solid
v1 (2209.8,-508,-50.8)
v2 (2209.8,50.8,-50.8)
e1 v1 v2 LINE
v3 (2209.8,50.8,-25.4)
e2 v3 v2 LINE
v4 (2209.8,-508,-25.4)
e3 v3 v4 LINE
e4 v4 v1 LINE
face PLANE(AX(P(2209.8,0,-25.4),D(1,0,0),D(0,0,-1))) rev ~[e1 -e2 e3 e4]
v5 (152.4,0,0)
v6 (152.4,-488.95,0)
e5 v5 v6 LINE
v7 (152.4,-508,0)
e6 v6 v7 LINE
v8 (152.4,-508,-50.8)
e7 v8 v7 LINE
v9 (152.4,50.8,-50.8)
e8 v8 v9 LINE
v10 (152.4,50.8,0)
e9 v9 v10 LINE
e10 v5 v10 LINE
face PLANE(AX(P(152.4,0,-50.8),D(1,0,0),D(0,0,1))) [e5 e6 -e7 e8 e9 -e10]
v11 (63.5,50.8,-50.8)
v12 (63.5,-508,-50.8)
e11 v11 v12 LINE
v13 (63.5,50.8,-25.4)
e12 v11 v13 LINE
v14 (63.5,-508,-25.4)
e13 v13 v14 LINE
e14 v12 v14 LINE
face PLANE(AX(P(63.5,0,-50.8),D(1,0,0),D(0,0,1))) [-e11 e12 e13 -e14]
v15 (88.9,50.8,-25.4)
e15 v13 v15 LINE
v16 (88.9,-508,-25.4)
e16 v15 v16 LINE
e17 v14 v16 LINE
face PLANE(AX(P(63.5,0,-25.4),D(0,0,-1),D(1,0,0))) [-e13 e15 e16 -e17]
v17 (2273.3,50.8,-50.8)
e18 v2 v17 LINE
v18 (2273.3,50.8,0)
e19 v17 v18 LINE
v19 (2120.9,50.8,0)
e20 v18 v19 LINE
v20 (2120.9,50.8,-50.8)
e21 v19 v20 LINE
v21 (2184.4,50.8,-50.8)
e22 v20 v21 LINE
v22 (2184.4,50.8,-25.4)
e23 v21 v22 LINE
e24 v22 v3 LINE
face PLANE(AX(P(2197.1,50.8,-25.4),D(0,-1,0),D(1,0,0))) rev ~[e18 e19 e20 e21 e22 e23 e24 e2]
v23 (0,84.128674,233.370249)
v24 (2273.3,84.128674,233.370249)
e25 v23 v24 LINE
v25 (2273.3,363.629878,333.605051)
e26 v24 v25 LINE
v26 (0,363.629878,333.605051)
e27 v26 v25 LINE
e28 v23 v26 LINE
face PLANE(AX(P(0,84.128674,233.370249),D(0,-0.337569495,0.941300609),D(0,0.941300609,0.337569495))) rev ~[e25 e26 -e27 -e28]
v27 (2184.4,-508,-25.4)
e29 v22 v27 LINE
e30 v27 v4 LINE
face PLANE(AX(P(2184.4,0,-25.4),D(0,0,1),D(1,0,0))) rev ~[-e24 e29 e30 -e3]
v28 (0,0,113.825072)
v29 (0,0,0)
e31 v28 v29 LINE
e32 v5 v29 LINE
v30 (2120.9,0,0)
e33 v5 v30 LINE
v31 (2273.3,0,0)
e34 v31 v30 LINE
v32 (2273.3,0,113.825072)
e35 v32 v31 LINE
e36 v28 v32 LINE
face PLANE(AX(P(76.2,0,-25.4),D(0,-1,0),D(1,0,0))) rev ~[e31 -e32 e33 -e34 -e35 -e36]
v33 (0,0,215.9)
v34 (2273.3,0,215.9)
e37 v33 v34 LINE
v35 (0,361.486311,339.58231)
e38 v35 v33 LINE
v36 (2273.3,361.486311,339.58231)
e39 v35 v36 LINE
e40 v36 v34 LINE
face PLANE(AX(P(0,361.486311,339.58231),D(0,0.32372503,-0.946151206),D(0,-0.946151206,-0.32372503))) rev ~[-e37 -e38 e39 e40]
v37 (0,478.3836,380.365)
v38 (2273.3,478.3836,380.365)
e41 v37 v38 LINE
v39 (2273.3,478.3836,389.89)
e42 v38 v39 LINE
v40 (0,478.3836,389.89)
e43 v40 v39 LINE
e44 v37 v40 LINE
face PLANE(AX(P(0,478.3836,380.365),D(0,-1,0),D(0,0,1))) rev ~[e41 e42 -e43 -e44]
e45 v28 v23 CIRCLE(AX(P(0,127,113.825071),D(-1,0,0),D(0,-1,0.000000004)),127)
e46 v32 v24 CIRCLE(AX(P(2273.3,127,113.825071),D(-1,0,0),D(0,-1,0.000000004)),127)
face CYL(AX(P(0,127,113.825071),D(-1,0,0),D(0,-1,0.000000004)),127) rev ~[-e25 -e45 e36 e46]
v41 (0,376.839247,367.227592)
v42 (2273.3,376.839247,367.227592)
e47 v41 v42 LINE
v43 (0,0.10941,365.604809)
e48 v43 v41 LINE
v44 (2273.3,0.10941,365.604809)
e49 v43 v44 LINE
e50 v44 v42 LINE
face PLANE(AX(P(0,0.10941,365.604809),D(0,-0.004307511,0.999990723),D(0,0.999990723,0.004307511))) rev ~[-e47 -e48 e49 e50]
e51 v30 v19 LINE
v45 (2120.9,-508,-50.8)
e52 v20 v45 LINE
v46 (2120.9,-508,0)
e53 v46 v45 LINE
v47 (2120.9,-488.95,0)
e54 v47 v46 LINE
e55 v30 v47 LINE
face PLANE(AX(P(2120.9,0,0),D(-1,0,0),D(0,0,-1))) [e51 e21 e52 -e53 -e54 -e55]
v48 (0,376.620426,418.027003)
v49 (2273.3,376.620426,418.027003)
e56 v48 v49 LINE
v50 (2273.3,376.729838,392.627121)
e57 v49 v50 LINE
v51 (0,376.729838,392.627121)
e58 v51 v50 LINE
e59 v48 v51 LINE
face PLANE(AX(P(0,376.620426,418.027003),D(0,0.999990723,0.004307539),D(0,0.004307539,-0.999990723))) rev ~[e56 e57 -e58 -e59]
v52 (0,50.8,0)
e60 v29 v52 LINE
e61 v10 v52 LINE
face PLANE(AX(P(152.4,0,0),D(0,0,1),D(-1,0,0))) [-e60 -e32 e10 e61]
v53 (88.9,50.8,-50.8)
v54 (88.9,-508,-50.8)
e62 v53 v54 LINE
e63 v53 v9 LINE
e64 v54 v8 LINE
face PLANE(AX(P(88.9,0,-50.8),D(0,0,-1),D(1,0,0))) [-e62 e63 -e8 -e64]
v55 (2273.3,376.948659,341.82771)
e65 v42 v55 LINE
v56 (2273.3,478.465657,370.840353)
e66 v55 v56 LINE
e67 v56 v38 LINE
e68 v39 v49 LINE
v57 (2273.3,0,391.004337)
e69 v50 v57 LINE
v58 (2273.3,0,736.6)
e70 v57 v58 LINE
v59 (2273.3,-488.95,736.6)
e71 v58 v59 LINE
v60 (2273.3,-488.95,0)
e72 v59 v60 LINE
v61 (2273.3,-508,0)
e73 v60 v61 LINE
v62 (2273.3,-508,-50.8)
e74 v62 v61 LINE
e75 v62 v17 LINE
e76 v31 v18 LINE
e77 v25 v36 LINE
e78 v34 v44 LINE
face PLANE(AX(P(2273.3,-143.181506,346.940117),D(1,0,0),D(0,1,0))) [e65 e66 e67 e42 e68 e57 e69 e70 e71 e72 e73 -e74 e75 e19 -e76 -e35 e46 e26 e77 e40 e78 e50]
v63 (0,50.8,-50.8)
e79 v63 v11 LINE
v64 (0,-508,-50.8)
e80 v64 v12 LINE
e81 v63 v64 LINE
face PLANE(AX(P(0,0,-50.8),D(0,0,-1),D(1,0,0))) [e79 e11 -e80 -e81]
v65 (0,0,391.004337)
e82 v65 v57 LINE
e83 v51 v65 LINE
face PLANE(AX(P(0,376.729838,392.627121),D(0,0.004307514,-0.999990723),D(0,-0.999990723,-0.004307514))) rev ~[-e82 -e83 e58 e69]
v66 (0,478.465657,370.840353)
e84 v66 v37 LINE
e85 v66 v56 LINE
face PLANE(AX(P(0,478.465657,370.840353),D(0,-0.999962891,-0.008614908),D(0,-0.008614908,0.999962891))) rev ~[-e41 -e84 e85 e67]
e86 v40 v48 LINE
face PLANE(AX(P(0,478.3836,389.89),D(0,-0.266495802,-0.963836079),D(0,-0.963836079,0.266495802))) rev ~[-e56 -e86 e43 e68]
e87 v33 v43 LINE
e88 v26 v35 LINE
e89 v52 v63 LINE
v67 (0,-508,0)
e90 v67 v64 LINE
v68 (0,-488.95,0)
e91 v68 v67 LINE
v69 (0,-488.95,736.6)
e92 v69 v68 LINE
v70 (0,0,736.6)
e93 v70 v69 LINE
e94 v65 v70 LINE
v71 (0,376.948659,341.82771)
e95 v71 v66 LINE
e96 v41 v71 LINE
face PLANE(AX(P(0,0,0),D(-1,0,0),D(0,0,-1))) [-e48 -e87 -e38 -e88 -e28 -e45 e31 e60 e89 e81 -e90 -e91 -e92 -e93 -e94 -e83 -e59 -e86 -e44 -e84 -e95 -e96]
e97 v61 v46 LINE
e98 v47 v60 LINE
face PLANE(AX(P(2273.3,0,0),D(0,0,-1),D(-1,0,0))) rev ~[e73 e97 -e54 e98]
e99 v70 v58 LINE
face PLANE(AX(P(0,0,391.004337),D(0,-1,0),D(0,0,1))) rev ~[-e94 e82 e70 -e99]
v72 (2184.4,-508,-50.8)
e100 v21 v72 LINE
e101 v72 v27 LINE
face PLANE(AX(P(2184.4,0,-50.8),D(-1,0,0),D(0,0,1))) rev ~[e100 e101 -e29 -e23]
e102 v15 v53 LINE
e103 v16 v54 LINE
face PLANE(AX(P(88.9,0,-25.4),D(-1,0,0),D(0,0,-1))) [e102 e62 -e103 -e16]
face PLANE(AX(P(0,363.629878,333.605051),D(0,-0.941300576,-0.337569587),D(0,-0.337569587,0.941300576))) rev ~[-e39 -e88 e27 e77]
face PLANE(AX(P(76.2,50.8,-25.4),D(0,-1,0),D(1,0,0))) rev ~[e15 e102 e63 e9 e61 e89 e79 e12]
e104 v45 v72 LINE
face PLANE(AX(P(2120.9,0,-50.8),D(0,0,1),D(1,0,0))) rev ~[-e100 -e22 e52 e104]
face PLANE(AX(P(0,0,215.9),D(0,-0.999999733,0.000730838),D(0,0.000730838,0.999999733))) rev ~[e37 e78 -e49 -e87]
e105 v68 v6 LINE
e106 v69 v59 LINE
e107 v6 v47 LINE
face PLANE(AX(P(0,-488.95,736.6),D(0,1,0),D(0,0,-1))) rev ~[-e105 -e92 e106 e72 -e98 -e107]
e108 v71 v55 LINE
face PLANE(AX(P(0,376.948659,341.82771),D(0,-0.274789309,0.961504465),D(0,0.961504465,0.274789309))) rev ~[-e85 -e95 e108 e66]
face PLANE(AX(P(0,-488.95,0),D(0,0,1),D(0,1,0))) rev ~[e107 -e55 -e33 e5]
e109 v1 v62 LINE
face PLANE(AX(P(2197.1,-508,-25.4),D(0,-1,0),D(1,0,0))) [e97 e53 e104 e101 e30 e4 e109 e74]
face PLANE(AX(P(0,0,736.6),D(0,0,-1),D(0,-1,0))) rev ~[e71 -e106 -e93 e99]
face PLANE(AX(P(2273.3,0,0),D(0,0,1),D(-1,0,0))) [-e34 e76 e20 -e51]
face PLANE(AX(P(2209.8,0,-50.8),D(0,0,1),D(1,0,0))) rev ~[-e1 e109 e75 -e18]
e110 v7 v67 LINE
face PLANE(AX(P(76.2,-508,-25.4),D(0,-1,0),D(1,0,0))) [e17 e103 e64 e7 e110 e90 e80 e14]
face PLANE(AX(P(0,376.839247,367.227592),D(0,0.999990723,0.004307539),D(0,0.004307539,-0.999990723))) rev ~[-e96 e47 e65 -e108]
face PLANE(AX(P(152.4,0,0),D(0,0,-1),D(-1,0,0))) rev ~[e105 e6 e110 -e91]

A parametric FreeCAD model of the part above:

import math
import FreeCAD as App
import Part
import Sketcher
Q = App.Units.Quantity


def add_polygon(sketch, points):
    """Adds a closed chain of lines whose ends are joined by coincident constraints."""
    first, n = sketch.GeometryCount, len(points)
    for a, b in zip(points, points[1:] + points[:1]):
        sketch.addGeometry(Part.LineSegment(App.Vector(*a, 0), App.Vector(*b, 0)), False)
    for i in range(n):
        sketch.addConstraint(Sketcher.Constraint("Coincident", first + i, 2, first + (i + 1) % n, 1))

doc = App.newDocument("Part")
body = doc.addObject("PartDesign::Body", "Body")

# Sketch on YZ plane
sketch1 = body.newObject("Sketcher::SketchObject", "Sketch")
sketch1.AttachmentSupport = (doc.getObject("YZ_Plane"), [""])
sketch1.MapMode = "FlatFace"
sketch1.addGeometry(Part.LineSegment(App.Vector(-488.95, 736.6, 0), App.Vector(-488.95, 0, 0)), False)
sketch1.addGeometry(Part.LineSegment(App.Vector(-488.95, 0, 0), App.Vector(0, 0, 0)), False)
sketch1.addGeometry(Part.LineSegment(App.Vector(0, 0, 0), App.Vector(0, 113.825072, 0)), False)
sketch1.addGeometry(Part.ArcOfCircle(Part.Circle(App.Vector(127, 113.825071, 0), App.Vector(0, 0, 1), 127), math.radians(109.728864), math.radians(180)), False)
sketch1.addGeometry(Part.LineSegment(App.Vector(84.128674, 233.370249, 0), App.Vector(363.629878, 333.605051, 0)), False)
sketch1.addGeometry(Part.LineSegment(App.Vector(363.629878, 333.605051, 0), App.Vector(361.486311, 339.58231, 0)), False)
sketch1.addGeometry(Part.LineSegment(App.Vector(361.486311, 339.58231, 0), App.Vector(0, 215.9, 0)), False)
sketch1.addGeometry(Part.LineSegment(App.Vector(0, 215.9, 0), App.Vector(0.10941, 365.604809, 0)), False)
sketch1.addGeometry(Part.LineSegment(App.Vector(0.10941, 365.604809, 0), App.Vector(376.839247, 367.227592, 0)), False)
sketch1.addGeometry(Part.LineSegment(App.Vector(376.839247, 367.227592, 0), App.Vector(376.948659, 341.82771, 0)), False)
sketch1.addGeometry(Part.LineSegment(App.Vector(376.948659, 341.82771, 0), App.Vector(478.465657, 370.840353, 0)), False)
sketch1.addGeometry(Part.LineSegment(App.Vector(478.465657, 370.840353, 0), App.Vector(478.3836, 380.365, 0)), False)
sketch1.addGeometry(Part.LineSegment(App.Vector(478.3836, 380.365, 0), App.Vector(478.3836, 389.89, 0)), False)
sketch1.addGeometry(Part.LineSegment(App.Vector(478.3836, 389.89, 0), App.Vector(376.620426, 418.027003, 0)), False)
sketch1.addGeometry(Part.LineSegment(App.Vector(376.620426, 418.027003, 0), App.Vector(376.729838, 392.627121, 0)), False)
sketch1.addGeometry(Part.LineSegment(App.Vector(376.729838, 392.627121, 0), App.Vector(0, 391.004337, 0)), False)
sketch1.addGeometry(Part.LineSegment(App.Vector(0, 391.004337, 0), App.Vector(0, 736.6, 0)), False)
sketch1.addGeometry(Part.LineSegment(App.Vector(0, 736.6, 0), App.Vector(-488.95, 736.6, 0)), False)
sketch1.addConstraint(Sketcher.Constraint("Coincident", 0, 2, 1, 1))
sketch1.addConstraint(Sketcher.Constraint("Coincident", 1, 2, 2, 1))
sketch1.addConstraint(Sketcher.Constraint("Coincident", 2, 2, 3, 2))
sketch1.addConstraint(Sketcher.Constraint("Coincident", 3, 1, 4, 1))
sketch1.addConstraint(Sketcher.Constraint("Coincident", 4, 2, 5, 1))
sketch1.addConstraint(Sketcher.Constraint("Coincident", 5, 2, 6, 1))
sketch1.addConstraint(Sketcher.Constraint("Coincident", 6, 2, 7, 1))
sketch1.addConstraint(Sketcher.Constraint("Coincident", 7, 2, 8, 1))
sketch1.addConstraint(Sketcher.Constraint("Coincident", 8, 2, 9, 1))
sketch1.addConstraint(Sketcher.Constraint("Coincident", 9, 2, 10, 1))
sketch1.addConstraint(Sketcher.Constraint("Coincident", 10, 2, 11, 1))
sketch1.addConstraint(Sketcher.Constraint("Coincident", 11, 2, 12, 1))
sketch1.addConstraint(Sketcher.Constraint("Coincident", 12, 2, 13, 1))
sketch1.addConstraint(Sketcher.Constraint("Coincident", 13, 2, 14, 1))
sketch1.addConstraint(Sketcher.Constraint("Coincident", 14, 2, 15, 1))
sketch1.addConstraint(Sketcher.Constraint("Coincident", 15, 2, 16, 1))
sketch1.addConstraint(Sketcher.Constraint("Coincident", 16, 2, 17, 1))
sketch1.addConstraint(Sketcher.Constraint("Coincident", 17, 2, 0, 1))
sketch1.addConstraint(Sketcher.Constraint("Vertical", 0))
sketch1.addConstraint(Sketcher.Constraint("Horizontal", 1))
sketch1.addConstraint(Sketcher.Constraint("Vertical", 2))
sketch1.addConstraint(Sketcher.Constraint("Vertical", 12))
sketch1.addConstraint(Sketcher.Constraint("Vertical", 16))
sketch1.addConstraint(Sketcher.Constraint("Horizontal", 17))
sketch1.addConstraint(Sketcher.Constraint("Coincident", 1, 2, -1, 1))
sketch1.addConstraint(Sketcher.Constraint("PointOnObject", 6, 2, -2))
sketch1.addConstraint(Sketcher.Constraint("PointOnObject", 15, 2, -2))
sketch1.addConstraint(Sketcher.Constraint("Radius", 3, Q("5 in")))
sketch1.addConstraint(Sketcher.Constraint("DistanceY", 0, 2, 0, 1, Q("29 in")))
sketch1.addConstraint(Sketcher.Constraint("DistanceX", 1, 1, 1, 2, Q("19.25 in")))
sketch1.addConstraint(Sketcher.Constraint("DistanceY", -1, 1, 6, 2, Q("8.5 in")))
sketch1.addConstraint(Sketcher.Constraint("Distance", 5, Q("0.25 in")))
sketch1.addConstraint(Sketcher.Constraint("DistanceY", 12, 1, 12, 2, Q("0.375 in")))
sketch1.addConstraint(Sketcher.Constraint("DistanceY", -1, 1, 12, 2, Q("15.35 in")))
sketch1.addConstraint(Sketcher.Constraint("Distance", 11, Q("0.375 in")))
sketch1.addConstraint(Sketcher.Constraint("DistanceX", -1, 1, 11, 2, Q("18.834 in")))
sketch1.addConstraint(Sketcher.Constraint("DistanceX", 7, 2, 5, 2, Q("361.376901 mm")))
sketch1.addConstraint(Sketcher.Constraint("DistanceY", 5, 2, 7, 2, Q("26.022499 mm")))
sketch1.addConstraint(Sketcher.Constraint("DistanceY", 5, 2, 9, 2, Q("2.2454 mm")))
sketch1.addConstraint(Sketcher.Constraint("DistanceX", 9, 2, 10, 2, Q("101.516998 mm")))
sketch1.addConstraint(Sketcher.Constraint("DistanceY", 4, 2, 10, 2, Q("37.235302 mm")))
sketch1.addConstraint(Sketcher.Constraint("Distance", 6, Q("382.059769 mm")))
sketch1.addConstraint(Sketcher.Constraint("Distance", 7, Q("149.704849 mm")))
sketch1.addConstraint(Sketcher.Constraint("Distance", 13, Q("105.581412 mm")))
sketch1.addConstraint(Sketcher.Constraint("DistanceY", 2, 1, 2, 2, Q("113.825072 mm")))
sketch1.addConstraint(Sketcher.Constraint("DistanceY", 16, 1, 16, 2, Q("345.595663 mm")))
sketch1.addConstraint(Sketcher.Constraint("DistanceY", -1, 1, 3, 3, Q("113.825071 mm")))
sketch1.addConstraint(Sketcher.Constraint("DistanceY", -1, 1, 3, 1, Q("233.370249 mm")))
sketch1.addConstraint(Sketcher.Constraint("DistanceX", -1, 1, 4, 2, Q("363.629878 mm")))
sketch1.addConstraint(Sketcher.Constraint("DistanceY", -1, 1, 8, 2, Q("367.227592 mm")))
sketch1.addConstraint(Sketcher.Constraint("DistanceY", -1, 1, 14, 2, Q("392.627121 mm")))
sketch1.addConstraint(Sketcher.Constraint("DistanceX", 4, 2, 8, 2, Q("13.209369 mm")))
sketch1.addConstraint(Sketcher.Constraint("DistanceX", 13, 2, 8, 2, Q("0.218821 mm")))
sketch1.addConstraint(Sketcher.Constraint("DistanceX", 14, 2, 8, 2, Q("0.109409 mm")))
pad1 = body.newObject("PartDesign::Pad", "Pad")
pad1.Profile = sketch1
pad1.Length = Q("89.5 in")

# Sketch on XZ plane
sketch2 = body.newObject("Sketcher::SketchObject", "Sketch001")
sketch2.AttachmentSupport = (doc.getObject("XZ_Plane"), [""])
sketch2.MapMode = "FlatFace"
add_polygon(sketch2, [(0, 0), (0, -51), (64, -51), (64, -25), (89, -25), (89, -51), (152, -51), (152, 0)])  # lines 0-7
add_polygon(sketch2, [(2273, -51), (2273, 0), (2121, 0), (2121, -51), (2184, -51), (2184, -25), (2210, -25), (2210, -51)])  # lines 8-15
sketch2.addConstraint(Sketcher.Constraint("Vertical", 0))
sketch2.addConstraint(Sketcher.Constraint("Horizontal", 1))
sketch2.addConstraint(Sketcher.Constraint("Vertical", 2))
sketch2.addConstraint(Sketcher.Constraint("Horizontal", 3))
sketch2.addConstraint(Sketcher.Constraint("Vertical", 4))
sketch2.addConstraint(Sketcher.Constraint("Horizontal", 5))
sketch2.addConstraint(Sketcher.Constraint("Vertical", 6))
sketch2.addConstraint(Sketcher.Constraint("Horizontal", 7))
sketch2.addConstraint(Sketcher.Constraint("Vertical", 8))
sketch2.addConstraint(Sketcher.Constraint("Horizontal", 9))
sketch2.addConstraint(Sketcher.Constraint("Vertical", 10))
sketch2.addConstraint(Sketcher.Constraint("Horizontal", 11))
sketch2.addConstraint(Sketcher.Constraint("Vertical", 12))
sketch2.addConstraint(Sketcher.Constraint("Horizontal", 13))
sketch2.addConstraint(Sketcher.Constraint("Vertical", 14))
sketch2.addConstraint(Sketcher.Constraint("Horizontal", 15))
sketch2.addConstraint(Sketcher.Constraint("Coincident", 7, 2, -1, 1))
sketch2.addConstraint(Sketcher.Constraint("PointOnObject", 8, 2, -1))
sketch2.addConstraint(Sketcher.Constraint("Horizontal", 1, 2, 4, 2))
sketch2.addConstraint(Sketcher.Constraint("Horizontal", 5, 2, 10, 2))
sketch2.addConstraint(Sketcher.Constraint("Horizontal", 3, 2, 12, 2))
sketch2.addConstraint(Sketcher.Constraint("Horizontal", 11, 2, 14, 2))
sketch2.addConstraint(Sketcher.Constraint("Equal", 1, 5))
sketch2.addConstraint(Sketcher.Constraint("Equal", 7, 9))
sketch2.addConstraint(Sketcher.Constraint("Equal", 5, 11))
sketch2.addConstraint(Sketcher.Constraint("Equal", 3, 13))
sketch2.addConstraint(Sketcher.Constraint("Equal", 13, 2))
sketch2.addConstraint(Sketcher.Constraint("DistanceX", 3, 1, 3, 2, Q("1 in")))
sketch2.addConstraint(Sketcher.Constraint("DistanceX", 7, 2, 7, 1, Q("6 in")))
sketch2.addConstraint(Sketcher.Constraint("DistanceY", 0, 2, 0, 1, Q("2 in")))
sketch2.addConstraint(Sketcher.Constraint("DistanceX", -1, 1, 11, 2, Q("86 in")))
pad2 = body.newObject("PartDesign::Pad", "Pad001")
pad2.Profile = sketch2
pad2.Type = "TwoLengths"
pad2.Length = Q("20 in")
pad2.Length2 = Q("2 in")

doc.recompute()
